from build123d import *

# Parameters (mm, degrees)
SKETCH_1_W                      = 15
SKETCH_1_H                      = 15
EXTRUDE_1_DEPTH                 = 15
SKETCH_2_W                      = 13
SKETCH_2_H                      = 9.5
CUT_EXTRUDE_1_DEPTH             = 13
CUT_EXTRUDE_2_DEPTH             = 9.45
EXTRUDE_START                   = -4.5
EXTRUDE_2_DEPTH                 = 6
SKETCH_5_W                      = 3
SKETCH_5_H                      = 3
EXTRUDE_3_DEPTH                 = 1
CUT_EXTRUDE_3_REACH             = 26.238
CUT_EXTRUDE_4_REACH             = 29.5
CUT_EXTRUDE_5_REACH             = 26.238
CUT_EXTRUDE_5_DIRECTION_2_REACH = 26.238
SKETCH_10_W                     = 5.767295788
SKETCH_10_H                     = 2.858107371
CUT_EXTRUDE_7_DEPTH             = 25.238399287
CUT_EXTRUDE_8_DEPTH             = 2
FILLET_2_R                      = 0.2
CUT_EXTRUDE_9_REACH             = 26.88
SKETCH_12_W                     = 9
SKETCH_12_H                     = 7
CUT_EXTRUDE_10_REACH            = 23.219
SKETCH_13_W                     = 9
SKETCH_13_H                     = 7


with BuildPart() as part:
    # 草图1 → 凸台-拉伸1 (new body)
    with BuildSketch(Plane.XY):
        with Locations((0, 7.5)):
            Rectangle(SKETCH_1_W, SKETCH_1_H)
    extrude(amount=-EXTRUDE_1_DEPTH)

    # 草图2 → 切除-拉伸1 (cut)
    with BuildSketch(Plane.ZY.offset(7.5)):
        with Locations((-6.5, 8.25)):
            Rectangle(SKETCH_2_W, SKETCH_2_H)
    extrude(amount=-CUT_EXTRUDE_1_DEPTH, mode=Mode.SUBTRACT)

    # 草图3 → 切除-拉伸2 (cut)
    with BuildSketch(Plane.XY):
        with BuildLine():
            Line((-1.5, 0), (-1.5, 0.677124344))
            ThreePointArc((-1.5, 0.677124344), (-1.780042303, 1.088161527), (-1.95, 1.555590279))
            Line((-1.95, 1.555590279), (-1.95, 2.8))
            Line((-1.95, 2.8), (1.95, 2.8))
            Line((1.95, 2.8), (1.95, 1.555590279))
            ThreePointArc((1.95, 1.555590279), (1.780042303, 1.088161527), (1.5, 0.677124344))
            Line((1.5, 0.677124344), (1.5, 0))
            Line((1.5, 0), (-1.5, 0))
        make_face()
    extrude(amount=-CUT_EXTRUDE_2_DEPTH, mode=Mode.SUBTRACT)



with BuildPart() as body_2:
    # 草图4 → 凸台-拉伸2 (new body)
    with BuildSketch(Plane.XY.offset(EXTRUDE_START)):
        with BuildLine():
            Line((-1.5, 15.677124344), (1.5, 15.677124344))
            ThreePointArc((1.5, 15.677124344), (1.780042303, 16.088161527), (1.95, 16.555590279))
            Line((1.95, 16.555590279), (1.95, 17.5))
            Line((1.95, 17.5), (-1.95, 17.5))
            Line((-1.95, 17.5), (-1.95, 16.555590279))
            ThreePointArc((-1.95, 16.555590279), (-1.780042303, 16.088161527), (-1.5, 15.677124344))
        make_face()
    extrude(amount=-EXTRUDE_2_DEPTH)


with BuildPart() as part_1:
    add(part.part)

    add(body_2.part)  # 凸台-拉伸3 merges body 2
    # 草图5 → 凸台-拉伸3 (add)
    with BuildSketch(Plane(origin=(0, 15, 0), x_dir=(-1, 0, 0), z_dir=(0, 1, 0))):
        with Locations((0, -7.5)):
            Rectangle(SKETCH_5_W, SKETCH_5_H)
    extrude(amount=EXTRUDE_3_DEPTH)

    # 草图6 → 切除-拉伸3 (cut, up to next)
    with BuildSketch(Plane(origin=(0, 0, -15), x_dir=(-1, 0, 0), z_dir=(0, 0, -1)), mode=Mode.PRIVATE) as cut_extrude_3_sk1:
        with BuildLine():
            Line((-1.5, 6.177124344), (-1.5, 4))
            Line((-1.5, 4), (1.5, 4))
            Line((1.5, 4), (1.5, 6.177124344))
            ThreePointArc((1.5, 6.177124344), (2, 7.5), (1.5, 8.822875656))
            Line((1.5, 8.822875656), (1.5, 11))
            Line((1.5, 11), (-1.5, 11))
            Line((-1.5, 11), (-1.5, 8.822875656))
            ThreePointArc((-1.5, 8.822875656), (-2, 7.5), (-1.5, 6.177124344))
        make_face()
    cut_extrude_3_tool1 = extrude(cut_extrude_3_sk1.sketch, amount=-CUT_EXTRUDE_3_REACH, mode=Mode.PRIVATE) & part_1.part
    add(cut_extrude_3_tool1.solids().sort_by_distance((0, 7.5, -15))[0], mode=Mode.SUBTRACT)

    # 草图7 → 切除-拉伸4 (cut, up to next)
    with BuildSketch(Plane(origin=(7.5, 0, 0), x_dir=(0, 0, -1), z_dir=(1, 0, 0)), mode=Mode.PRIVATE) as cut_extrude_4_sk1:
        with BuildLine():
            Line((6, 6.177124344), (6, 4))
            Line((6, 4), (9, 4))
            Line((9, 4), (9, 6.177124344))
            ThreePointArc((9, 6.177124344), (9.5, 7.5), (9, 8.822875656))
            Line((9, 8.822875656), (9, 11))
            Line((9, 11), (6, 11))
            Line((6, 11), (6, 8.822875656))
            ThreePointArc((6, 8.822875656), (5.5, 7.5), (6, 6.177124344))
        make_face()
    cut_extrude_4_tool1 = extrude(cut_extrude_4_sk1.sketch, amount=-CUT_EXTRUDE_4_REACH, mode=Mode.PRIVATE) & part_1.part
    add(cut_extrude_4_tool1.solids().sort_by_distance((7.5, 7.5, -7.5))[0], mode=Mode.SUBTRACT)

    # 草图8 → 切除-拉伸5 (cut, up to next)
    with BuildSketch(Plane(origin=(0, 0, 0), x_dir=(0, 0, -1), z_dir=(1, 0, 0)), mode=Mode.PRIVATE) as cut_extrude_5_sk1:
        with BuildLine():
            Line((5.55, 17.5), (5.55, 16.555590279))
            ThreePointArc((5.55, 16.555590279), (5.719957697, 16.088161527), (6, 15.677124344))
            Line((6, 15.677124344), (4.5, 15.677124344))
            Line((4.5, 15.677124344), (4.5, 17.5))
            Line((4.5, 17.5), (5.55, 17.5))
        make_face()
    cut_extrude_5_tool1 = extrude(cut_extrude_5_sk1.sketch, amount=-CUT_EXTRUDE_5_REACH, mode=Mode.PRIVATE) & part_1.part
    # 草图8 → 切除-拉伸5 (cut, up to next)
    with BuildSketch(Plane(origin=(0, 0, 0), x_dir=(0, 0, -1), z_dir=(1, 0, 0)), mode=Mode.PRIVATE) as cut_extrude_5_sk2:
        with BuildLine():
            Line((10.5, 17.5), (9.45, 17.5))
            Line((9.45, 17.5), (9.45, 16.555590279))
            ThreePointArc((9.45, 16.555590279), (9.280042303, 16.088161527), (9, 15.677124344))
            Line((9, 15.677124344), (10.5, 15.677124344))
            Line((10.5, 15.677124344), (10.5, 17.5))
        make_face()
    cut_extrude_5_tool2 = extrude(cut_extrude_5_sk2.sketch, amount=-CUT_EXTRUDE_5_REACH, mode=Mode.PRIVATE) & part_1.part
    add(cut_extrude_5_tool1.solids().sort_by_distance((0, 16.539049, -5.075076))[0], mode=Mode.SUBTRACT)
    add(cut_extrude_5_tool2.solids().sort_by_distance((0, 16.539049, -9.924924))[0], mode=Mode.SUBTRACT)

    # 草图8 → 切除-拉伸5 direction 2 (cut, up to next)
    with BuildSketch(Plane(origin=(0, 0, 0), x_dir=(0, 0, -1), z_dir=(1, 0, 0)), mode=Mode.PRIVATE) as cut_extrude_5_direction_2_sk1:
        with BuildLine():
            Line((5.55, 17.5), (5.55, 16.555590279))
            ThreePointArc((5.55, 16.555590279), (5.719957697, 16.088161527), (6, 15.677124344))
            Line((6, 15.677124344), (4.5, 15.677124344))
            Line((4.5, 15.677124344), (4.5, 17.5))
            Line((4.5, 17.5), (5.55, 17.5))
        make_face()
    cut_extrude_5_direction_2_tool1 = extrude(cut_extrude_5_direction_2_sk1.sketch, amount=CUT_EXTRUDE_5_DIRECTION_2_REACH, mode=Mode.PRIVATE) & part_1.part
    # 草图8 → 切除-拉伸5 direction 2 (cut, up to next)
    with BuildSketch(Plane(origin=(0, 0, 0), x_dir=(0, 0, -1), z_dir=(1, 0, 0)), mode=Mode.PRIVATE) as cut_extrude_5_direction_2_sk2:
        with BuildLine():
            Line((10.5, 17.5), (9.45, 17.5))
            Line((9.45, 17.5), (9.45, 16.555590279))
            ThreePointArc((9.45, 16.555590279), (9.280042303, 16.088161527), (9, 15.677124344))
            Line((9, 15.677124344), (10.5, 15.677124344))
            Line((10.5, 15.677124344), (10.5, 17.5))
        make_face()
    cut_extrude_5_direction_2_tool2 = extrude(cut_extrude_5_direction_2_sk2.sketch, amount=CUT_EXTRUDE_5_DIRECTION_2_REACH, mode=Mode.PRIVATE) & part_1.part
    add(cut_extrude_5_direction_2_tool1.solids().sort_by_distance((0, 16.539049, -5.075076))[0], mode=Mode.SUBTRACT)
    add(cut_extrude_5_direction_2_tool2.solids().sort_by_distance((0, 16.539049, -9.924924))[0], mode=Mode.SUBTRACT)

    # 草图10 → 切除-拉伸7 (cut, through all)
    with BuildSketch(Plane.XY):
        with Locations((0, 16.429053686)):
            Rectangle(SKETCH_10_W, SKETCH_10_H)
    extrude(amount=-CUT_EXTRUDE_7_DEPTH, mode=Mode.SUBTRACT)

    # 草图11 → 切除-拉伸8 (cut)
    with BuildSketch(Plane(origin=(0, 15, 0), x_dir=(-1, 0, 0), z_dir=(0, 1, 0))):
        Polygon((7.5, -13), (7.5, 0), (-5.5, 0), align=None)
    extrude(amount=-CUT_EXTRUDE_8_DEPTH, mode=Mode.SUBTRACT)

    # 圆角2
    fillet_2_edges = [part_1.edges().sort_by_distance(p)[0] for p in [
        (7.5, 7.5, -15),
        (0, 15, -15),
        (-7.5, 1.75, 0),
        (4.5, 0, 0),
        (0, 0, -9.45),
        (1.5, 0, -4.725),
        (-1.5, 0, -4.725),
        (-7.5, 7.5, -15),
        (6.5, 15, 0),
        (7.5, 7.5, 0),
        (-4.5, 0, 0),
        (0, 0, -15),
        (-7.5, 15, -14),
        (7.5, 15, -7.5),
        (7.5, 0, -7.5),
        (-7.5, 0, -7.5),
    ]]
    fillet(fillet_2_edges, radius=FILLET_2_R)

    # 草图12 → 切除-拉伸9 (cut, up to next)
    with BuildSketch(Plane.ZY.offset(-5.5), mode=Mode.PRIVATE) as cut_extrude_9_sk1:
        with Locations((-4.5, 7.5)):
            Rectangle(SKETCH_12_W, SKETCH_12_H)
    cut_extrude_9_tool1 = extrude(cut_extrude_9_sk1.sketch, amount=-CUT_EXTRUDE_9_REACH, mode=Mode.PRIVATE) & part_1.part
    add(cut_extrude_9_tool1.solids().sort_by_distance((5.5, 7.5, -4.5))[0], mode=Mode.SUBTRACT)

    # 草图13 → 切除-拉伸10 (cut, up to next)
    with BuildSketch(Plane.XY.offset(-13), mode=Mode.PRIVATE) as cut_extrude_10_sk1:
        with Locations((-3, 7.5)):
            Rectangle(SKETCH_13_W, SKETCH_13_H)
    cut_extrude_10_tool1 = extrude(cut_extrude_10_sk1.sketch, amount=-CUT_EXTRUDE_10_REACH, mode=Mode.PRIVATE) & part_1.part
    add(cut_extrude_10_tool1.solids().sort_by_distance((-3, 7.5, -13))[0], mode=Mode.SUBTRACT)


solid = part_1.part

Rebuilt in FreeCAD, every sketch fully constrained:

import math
import FreeCAD as App
import Part
import Sketcher
Q = App.Units.Quantity


def edges_at(feature, points):
    """Names of the edges that pass closest to the given points."""
    edges = feature.Shape.Edges
    near = lambda p: min(range(len(edges)), key=lambda i: edges[i].distToShape(Part.Vertex(*p))[0])
    return sorted({f"Edge{near(p) + 1}" for p in points})

doc = App.newDocument("Part")
params = doc.addObject("Spreadsheet::Sheet", "Params")
for row, (alias, value) in enumerate([
    ("sketch1_width", "15 mm"),
    ("pad1_length", "15 mm"),
    ("sketch2_height", "13 mm"),
    ("sketch2_width", "9.5 mm"),
    ("pocket1_length", "13 mm"),
    ("sketch3_radius", "2 mm"),
    ("sketch3_width", "3 mm"),
    ("sketch3_width2", "3.9 mm"),
    ("pocket2_length", "9.45 mm"),
    ("sketch4_radius", "2 mm"),
    ("sketch4_width", "3 mm"),
    ("sketch4_width2", "3.9 mm"),
    ("pad2_length", "6 mm"),
    ("sketch5_width", "3 mm"),
    ("pad3_length", "1 mm"),
    ("sketch6_radius", "2 mm"),
    ("sketch6_width", "3 mm"),
    ("sketch7_radius", "2 mm"),
    ("sketch7_height", "3 mm"),
    ("sketch8_radius", "2 mm"),
    ("sketch8_height", "1.5 mm"),
    ("sketch8_height2", "1.05 mm"),
    ("sketch9_radius", "2 mm"),
    ("sketch9_height", "1.5 mm"),
    ("sketch9_height2", "1.05 mm"),
    ("sketch10_radius", "2 mm"),
    ("sketch10_height", "1.5 mm"),
    ("sketch10_height2", "1.05 mm"),
    ("sketch11_radius", "2 mm"),
    ("sketch11_height", "1.5 mm"),
    ("sketch11_height2", "1.05 mm"),
    ("sketch13_width", "13 mm"),
    ("pocket10_length", "2 mm"),
    ("fillet_radius", "0.2 mm"),
    ("sketch14_width", "7 mm"),
    ("sketch14_height", "9 mm"),
    ("sketch15_width", "9 mm"),
    ("sketch15_height", "7 mm"),
], start=1):
    params.set(f"A{row}", alias)
    params.set(f"B{row}", "=" + value)
    params.setAlias(f"B{row}", alias)

body = doc.addObject("PartDesign::Body", "Body")

# Sketch on XY plane
sketch1 = body.newObject("Sketcher::SketchObject", "Sketch")
sketch1.AttachmentSupport = (doc.getObject("XY_Plane"), [""])
sketch1.MapMode = "FlatFace"
sketch1.addGeometry(Part.LineSegment(App.Vector(-8, 15, 0), App.Vector(-8, 0, 0)), False)
sketch1.addGeometry(Part.LineSegment(App.Vector(-8, 0, 0), App.Vector(8, 0, 0)), False)
sketch1.addGeometry(Part.LineSegment(App.Vector(8, 0, 0), App.Vector(8, 15, 0)), False)
sketch1.addGeometry(Part.LineSegment(App.Vector(8, 15, 0), App.Vector(-8, 15, 0)), False)
sketch1.addConstraint(Sketcher.Constraint("Coincident", 0, 2, 1, 1))
sketch1.addConstraint(Sketcher.Constraint("Coincident", 1, 2, 2, 1))
sketch1.addConstraint(Sketcher.Constraint("Coincident", 2, 2, 3, 1))
sketch1.addConstraint(Sketcher.Constraint("Coincident", 3, 2, 0, 1))
sketch1.addConstraint(Sketcher.Constraint("Vertical", 0))
sketch1.addConstraint(Sketcher.Constraint("Horizontal", 1))
sketch1.addConstraint(Sketcher.Constraint("Vertical", 2))
sketch1.addConstraint(Sketcher.Constraint("Horizontal", 3))
sketch1.addConstraint(Sketcher.Constraint("Symmetric", 0, 2, 1, 2, -1, 1))
sketch1.addConstraint(Sketcher.Constraint("Equal", 3, 0))
sketch1.addConstraint(Sketcher.Constraint("DistanceX", 1, 1, 1, 2, Q("15 mm")))
sketch1.setExpression("Constraints[10]", "Params.sketch1_width")
pad1 = body.newObject("PartDesign::Pad", "Pad")
pad1.Profile = sketch1
pad1.setExpression("Length", "Params.pad1_length")
pad1.Reversed = True

# Sketch on YZ plane
sketch2 = body.newObject("Sketcher::SketchObject", "Sketch001")
sketch2.AttachmentSupport = (doc.getObject("YZ_Plane"), [""])
sketch2.MapMode = "FlatFace"
sketch2.AttachmentOffset = App.Placement(App.Vector(0, 0, -7.5), App.Rotation())
sketch2.addGeometry(Part.LineSegment(App.Vector(13, -13, 0), App.Vector(4, -13, 0)), False)
sketch2.addGeometry(Part.LineSegment(App.Vector(4, -13, 0), App.Vector(4, 0, 0)), False)
sketch2.addGeometry(Part.LineSegment(App.Vector(4, 0, 0), App.Vector(13, 0, 0)), False)
sketch2.addGeometry(Part.LineSegment(App.Vector(13, 0, 0), App.Vector(13, -13, 0)), False)
sketch2.addConstraint(Sketcher.Constraint("Coincident", 0, 2, 1, 1))
sketch2.addConstraint(Sketcher.Constraint("Coincident", 1, 2, 2, 1))
sketch2.addConstraint(Sketcher.Constraint("Coincident", 2, 2, 3, 1))
sketch2.addConstraint(Sketcher.Constraint("Coincident", 3, 2, 0, 1))
sketch2.addConstraint(Sketcher.Constraint("Horizontal", 0))
sketch2.addConstraint(Sketcher.Constraint("Vertical", 1))
sketch2.addConstraint(Sketcher.Constraint("Horizontal", 2))
sketch2.addConstraint(Sketcher.Constraint("Vertical", 3))
sketch2.addConstraint(Sketcher.Constraint("PointOnObject", 1, 2, -1))
sketch2.addConstraint(Sketcher.Constraint("DistanceY", 1, 1, 1, 2, Q("13 mm")))
sketch2.addConstraint(Sketcher.Constraint("DistanceX", 0, 2, 0, 1, Q("9.5 mm")))
sketch2.addConstraint(Sketcher.Constraint("DistanceX", -1, 1, 2, 2, Q("13 mm")))
sketch2.setExpression("Constraints[9]", "Params.sketch2_height")
sketch2.setExpression("Constraints[10]", "Params.sketch2_width")
pocket1 = body.newObject("PartDesign::Pocket", "Pocket")
pocket1.Profile = sketch2
pocket1.setExpression("Length", "Params.pocket1_length")
pocket1.Reversed = True

# Sketch on XY plane
sketch3 = body.newObject("Sketcher::SketchObject", "Sketch002")
sketch3.AttachmentSupport = (doc.getObject("XY_Plane"), [""])
sketch3.MapMode = "FlatFace"
sketch3.addGeometry(Part.LineSegment(App.Vector(-1.5, 0.7, 0), App.Vector(-1.5, 0, 0)), False)
sketch3.addGeometry(Part.LineSegment(App.Vector(-1.5, 0, 0), App.Vector(1.5, 0, 0)), False)
sketch3.addGeometry(Part.LineSegment(App.Vector(1.5, 0, 0), App.Vector(1.5, 0.7, 0)), False)
sketch3.addGeometry(Part.ArcOfCircle(Part.Circle(App.Vector(0, 2, 0), App.Vector(0, 0, 1), 2), math.radians(-41), math.radians(-13)), False)
sketch3.addGeometry(Part.LineSegment(App.Vector(1.9, 1.6, 0), App.Vector(1.9, 2.8, 0)), False)
sketch3.addGeometry(Part.LineSegment(App.Vector(1.9, 2.8, 0), App.Vector(-1.9, 2.8, 0)), False)
sketch3.addGeometry(Part.LineSegment(App.Vector(-1.9, 2.8, 0), App.Vector(-1.9, 1.6, 0)), False)
sketch3.addGeometry(Part.ArcOfCircle(Part.Circle(App.Vector(0, 2, 0), App.Vector(0, 0, 1), 2), math.radians(-167), math.radians(-139)), False)
sketch3.addConstraint(Sketcher.Constraint("Coincident", 0, 2, 1, 1))
sketch3.addConstraint(Sketcher.Constraint("Coincident", 1, 2, 2, 1))
sketch3.addConstraint(Sketcher.Constraint("Coincident", 2, 2, 3, 1))
sketch3.addConstraint(Sketcher.Constraint("Coincident", 3, 2, 4, 1))
sketch3.addConstraint(Sketcher.Constraint("Coincident", 4, 2, 5, 1))
sketch3.addConstraint(Sketcher.Constraint("Coincident", 5, 2, 6, 1))
sketch3.addConstraint(Sketcher.Constraint("Coincident", 6, 2, 7, 1))
sketch3.addConstraint(Sketcher.Constraint("Coincident", 7, 2, 0, 1))
sketch3.addConstraint(Sketcher.Constraint("Vertical", 0))
sketch3.addConstraint(Sketcher.Constraint("Horizontal", 1))
sketch3.addConstraint(Sketcher.Constraint("Vertical", 2))
sketch3.addConstraint(Sketcher.Constraint("Vertical", 4))
sketch3.addConstraint(Sketcher.Constraint("Horizontal", 5))
sketch3.addConstraint(Sketcher.Constraint("Vertical", 6))
sketch3.addConstraint(Sketcher.Constraint("Coincident", 7, 3, 3, 3))
sketch3.addConstraint(Sketcher.Constraint("Equal", 3, 7))
sketch3.addConstraint(Sketcher.Constraint("Symmetric", 0, 2, 1, 2, -1, 1))
sketch3.addConstraint(Sketcher.Constraint("Symmetric", 3, 2, 6, 2, -2))
sketch3.addConstraint(Sketcher.Constraint("Radius", 3, Q("2 mm")))
sketch3.addConstraint(Sketcher.Constraint("DistanceX", 1, 1, 1, 2, Q("3 mm")))
sketch3.addConstraint(Sketcher.Constraint("DistanceX", 5, 2, 5, 1, Q("3.9 mm")))
sketch3.addConstraint(Sketcher.Constraint("DistanceY", -1, 1, 3, 3, Q("2 mm")))
sketch3.addConstraint(Sketcher.Constraint("DistanceY", -1, 1, 4, 2, Q("2.8 mm")))
sketch3.setExpression("Constraints[18]", "Params.sketch3_radius")
sketch3.setExpression("Constraints[19]", "Params.sketch3_width")
sketch3.setExpression("Constraints[20]", "Params.sketch3_width2")
pocket2 = body.newObject("PartDesign::Pocket", "Pocket001")
pocket2.Profile = sketch3
pocket2.setExpression("Length", "Params.pocket2_length")
body2 = doc.addObject("PartDesign::Body", "Body001")

# Sketch on XY plane
sketch4 = body2.newObject("Sketcher::SketchObject", "Sketch003")
sketch4.AttachmentSupport = (doc.getObject("XY_Plane001"), [""])
sketch4.MapMode = "FlatFace"
sketch4.AttachmentOffset = App.Placement(App.Vector(0, 0, -4.5), App.Rotation())
sketch4.addGeometry(Part.LineSegment(App.Vector(-1.5, 15.7, 0), App.Vector(1.5, 15.7, 0)), False)
sketch4.addGeometry(Part.ArcOfCircle(Part.Circle(App.Vector(0, 17, 0), App.Vector(0, 0, 1), 2), math.radians(-41), math.radians(-13)), False)
sketch4.addGeometry(Part.LineSegment(App.Vector(1.9, 16.6, 0), App.Vector(1.9, 17.5, 0)), False)
sketch4.addGeometry(Part.LineSegment(App.Vector(1.9, 17.5, 0), App.Vector(-1.9, 17.5, 0)), False)
sketch4.addGeometry(Part.LineSegment(App.Vector(-1.9, 17.5, 0), App.Vector(-1.9, 16.6, 0)), False)
sketch4.addGeometry(Part.ArcOfCircle(Part.Circle(App.Vector(0, 17, 0), App.Vector(0, 0, 1), 2), math.radians(-167), math.radians(-139)), False)
sketch4.addConstraint(Sketcher.Constraint("Coincident", 0, 2, 1, 1))
sketch4.addConstraint(Sketcher.Constraint("Coincident", 1, 2, 2, 1))
sketch4.addConstraint(Sketcher.Constraint("Coincident", 2, 2, 3, 1))
sketch4.addConstraint(Sketcher.Constraint("Coincident", 3, 2, 4, 1))
sketch4.addConstraint(Sketcher.Constraint("Coincident", 4, 2, 5, 1))
sketch4.addConstraint(Sketcher.Constraint("Coincident", 5, 2, 0, 1))
sketch4.addConstraint(Sketcher.Constraint("Horizontal", 0))
sketch4.addConstraint(Sketcher.Constraint("Vertical", 2))
sketch4.addConstraint(Sketcher.Constraint("Horizontal", 3))
sketch4.addConstraint(Sketcher.Constraint("Vertical", 4))
sketch4.addConstraint(Sketcher.Constraint("Coincident", 5, 3, 1, 3))
sketch4.addConstraint(Sketcher.Constraint("Equal", 1, 5))
sketch4.addConstraint(Sketcher.Constraint("Symmetric", 1, 2, 4, 2, -2))
sketch4.addConstraint(Sketcher.Constraint("Radius", 1, Q("2 mm")))
sketch4.addConstraint(Sketcher.Constraint("DistanceX", 0, 1, 0, 2, Q("3 mm")))
sketch4.addConstraint(Sketcher.Constraint("DistanceX", 3, 2, 3, 1, Q("3.9 mm")))
sketch4.addConstraint(Sketcher.Constraint("DistanceY", -1, 1, 1, 3, Q("17 mm")))
sketch4.addConstraint(Sketcher.Constraint("DistanceY", -1, 1, 2, 2, Q("17.5 mm")))
sketch4.setExpression("Constraints[13]", "Params.sketch4_radius")
sketch4.setExpression("Constraints[14]", "Params.sketch4_width")
sketch4.setExpression("Constraints[15]", "Params.sketch4_width2")
pad2 = body2.newObject("PartDesign::Pad", "Pad001")
pad2.Profile = sketch4
pad2.setExpression("Length", "Params.pad2_length")
pad2.Reversed = True
body.AllowCompound = True
doc.recompute()

boolean = body.newObject("PartDesign::Boolean", "Boolean")
boolean.Type = "Fuse"
boolean.addObjects([body2])

# Sketch on XZ plane
sketch5 = body.newObject("Sketcher::SketchObject", "Sketch004")
sketch5.AttachmentSupport = (doc.getObject("XZ_Plane"), [""])
sketch5.MapMode = "FlatFace"
sketch5.AttachmentOffset = App.Placement(App.Vector(0, 0, -15), App.Rotation())
sketch5.addGeometry(Part.LineSegment(App.Vector(1.5, -6, 0), App.Vector(1.5, -9, 0)), False)
sketch5.addGeometry(Part.LineSegment(App.Vector(1.5, -9, 0), App.Vector(-1.5, -9, 0)), False)
sketch5.addGeometry(Part.LineSegment(App.Vector(-1.5, -9, 0), App.Vector(-1.5, -6, 0)), False)
sketch5.addGeometry(Part.LineSegment(App.Vector(-1.5, -6, 0), App.Vector(1.5, -6, 0)), False)
sketch5.addConstraint(Sketcher.Constraint("Coincident", 0, 2, 1, 1))
sketch5.addConstraint(Sketcher.Constraint("Coincident", 1, 2, 2, 1))
sketch5.addConstraint(Sketcher.Constraint("Coincident", 2, 2, 3, 1))
sketch5.addConstraint(Sketcher.Constraint("Coincident", 3, 2, 0, 1))
sketch5.addConstraint(Sketcher.Constraint("Vertical", 0))
sketch5.addConstraint(Sketcher.Constraint("Horizontal", 1))
sketch5.addConstraint(Sketcher.Constraint("Vertical", 2))
sketch5.addConstraint(Sketcher.Constraint("Horizontal", 3))
sketch5.addConstraint(Sketcher.Constraint("Equal", 3, 0))
sketch5.addConstraint(Sketcher.Constraint("DistanceX", 1, 2, 1, 1, Q("3 mm")))
sketch5.addConstraint(Sketcher.Constraint("DistanceY", 0, 2, -1, 1, Q("9 mm")))
sketch5.addConstraint(Sketcher.Constraint("DistanceX", -1, 1, 0, 2, Q("1.5 mm")))
sketch5.setExpression("Constraints[9]", "Params.sketch5_width")
pad3 = body.newObject("PartDesign::Pad", "Pad002")
pad3.Profile = sketch5
pad3.setExpression("Length", "Params.pad3_length")
pad3.Reversed = True

# Sketch on XY plane
sketch6 = body.newObject("Sketcher::SketchObject", "Sketch005")
sketch6.AttachmentSupport = (doc.getObject("XY_Plane"), [""])
sketch6.MapMode = "FlatFace"
sketch6.AttachmentOffset = App.Placement(App.Vector(0, 0, -15), App.Rotation())
sketch6.addGeometry(Part.LineSegment(App.Vector(1.5, 6.2, 0), App.Vector(1.5, 4, 0)), False)
sketch6.addGeometry(Part.LineSegment(App.Vector(1.5, 4, 0), App.Vector(-1.5, 4, 0)), False)
sketch6.addGeometry(Part.LineSegment(App.Vector(-1.5, 4, 0), App.Vector(-1.5, 6.2, 0)), False)
sketch6.addGeometry(Part.ArcOfCircle(Part.Circle(App.Vector(0, 7.5, 0), App.Vector(0, 0, 1), 2), math.radians(139), math.radians(221)), False)
sketch6.addGeometry(Part.LineSegment(App.Vector(-1.5, 8.8, 0), App.Vector(-1.5, 11, 0)), False)
sketch6.addGeometry(Part.LineSegment(App.Vector(-1.5, 11, 0), App.Vector(1.5, 11, 0)), False)
sketch6.addGeometry(Part.LineSegment(App.Vector(1.5, 11, 0), App.Vector(1.5, 8.8, 0)), False)
sketch6.addGeometry(Part.ArcOfCircle(Part.Circle(App.Vector(0, 7.5, 0), App.Vector(0, 0, 1), 2), math.radians(-41), math.radians(41)), False)
sketch6.addConstraint(Sketcher.Constraint("Coincident", 0, 2, 1, 1))
sketch6.addConstraint(Sketcher.Constraint("Coincident", 1, 2, 2, 1))
sketch6.addConstraint(Sketcher.Constraint("Coincident", 2, 2, 3, 2))
sketch6.addConstraint(Sketcher.Constraint("Coincident", 3, 1, 4, 1))
sketch6.addConstraint(Sketcher.Constraint("Coincident", 4, 2, 5, 1))
sketch6.addConstraint(Sketcher.Constraint("Coincident", 5, 2, 6, 1))
sketch6.addConstraint(Sketcher.Constraint("Coincident", 6, 2, 7, 2))
sketch6.addConstraint(Sketcher.Constraint("Coincident", 7, 1, 0, 1))
sketch6.addConstraint(Sketcher.Constraint("Vertical", 0))
sketch6.addConstraint(Sketcher.Constraint("Horizontal", 1))
sketch6.addConstraint(Sketcher.Constraint("Vertical", 2))
sketch6.addConstraint(Sketcher.Constraint("Vertical", 4))
sketch6.addConstraint(Sketcher.Constraint("Horizontal", 5))
sketch6.addConstraint(Sketcher.Constraint("Vertical", 6))
sketch6.addConstraint(Sketcher.Constraint("Coincident", 7, 3, 3, 3))
sketch6.addConstraint(Sketcher.Constraint("Equal", 3, 7))
sketch6.addConstraint(Sketcher.Constraint("Symmetric", 3, 1, 6, 2, -2))
sketch6.addConstraint(Sketcher.Constraint("Horizontal", 2, 2, 7, 1))
sketch6.addConstraint(Sketcher.Constraint("Vertical", 2, 2, 3, 1))
sketch6.addConstraint(Sketcher.Constraint("Equal", 2, 4))
sketch6.addConstraint(Sketcher.Constraint("Radius", 3, Q("2 mm")))
sketch6.addConstraint(Sketcher.Constraint("DistanceX", 1, 2, 1, 1, Q("3 mm")))
sketch6.addConstraint(Sketcher.Constraint("DistanceY", -1, 1, 0, 2, Q("4 mm")))
sketch6.addConstraint(Sketcher.Constraint("DistanceY", -1, 1, 4, 2, Q("11 mm")))
sketch6.setExpression("Constraints[20]", "Params.sketch6_radius")
sketch6.setExpression("Constraints[21]", "Params.sketch6_width")
pocket3 = body.newObject("PartDesign::Pocket", "Pocket002")
pocket3.Profile = sketch6
pocket3.Type = "UpToFirst"
pocket3.Reversed = True

# Sketch on YZ plane
sketch7 = body.newObject("Sketcher::SketchObject", "Sketch006")
sketch7.AttachmentSupport = (doc.getObject("YZ_Plane"), [""])
sketch7.MapMode = "FlatFace"
sketch7.AttachmentOffset = App.Placement(App.Vector(0, 0, 7.5), App.Rotation())
sketch7.addGeometry(Part.LineSegment(App.Vector(6.2, -6, 0), App.Vector(4, -6, 0)), False)
sketch7.addGeometry(Part.LineSegment(App.Vector(4, -6, 0), App.Vector(4, -9, 0)), False)
sketch7.addGeometry(Part.LineSegment(App.Vector(4, -9, 0), App.Vector(6.2, -9, 0)), False)
sketch7.addGeometry(Part.ArcOfCircle(Part.Circle(App.Vector(7.5, -7.5, 0), App.Vector(0, 0, 1), 2), math.radians(-131), math.radians(-49)), False)
sketch7.addGeometry(Part.LineSegment(App.Vector(8.8, -9, 0), App.Vector(11, -9, 0)), False)
sketch7.addGeometry(Part.LineSegment(App.Vector(11, -9, 0), App.Vector(11, -6, 0)), False)
sketch7.addGeometry(Part.LineSegment(App.Vector(11, -6, 0), App.Vector(8.8, -6, 0)), False)
sketch7.addGeometry(Part.ArcOfCircle(Part.Circle(App.Vector(7.5, -7.5, 0), App.Vector(0, 0, 1), 2), math.radians(49), math.radians(131)), False)
sketch7.addConstraint(Sketcher.Constraint("Coincident", 0, 2, 1, 1))
sketch7.addConstraint(Sketcher.Constraint("Coincident", 1, 2, 2, 1))
sketch7.addConstraint(Sketcher.Constraint("Coincident", 2, 2, 3, 1))
sketch7.addConstraint(Sketcher.Constraint("Coincident", 3, 2, 4, 1))
sketch7.addConstraint(Sketcher.Constraint("Coincident", 4, 2, 5, 1))
sketch7.addConstraint(Sketcher.Constraint("Coincident", 5, 2, 6, 1))
sketch7.addConstraint(Sketcher.Constraint("Coincident", 6, 2, 7, 1))
sketch7.addConstraint(Sketcher.Constraint("Coincident", 7, 2, 0, 1))
sketch7.addConstraint(Sketcher.Constraint("Horizontal", 0))
sketch7.addConstraint(Sketcher.Constraint("Vertical", 1))
sketch7.addConstraint(Sketcher.Constraint("Horizontal", 2))
sketch7.addConstraint(Sketcher.Constraint("Horizontal", 4))
sketch7.addConstraint(Sketcher.Constraint("Vertical", 5))
sketch7.addConstraint(Sketcher.Constraint("Horizontal", 6))
sketch7.addConstraint(Sketcher.Constraint("Coincident", 7, 3, 3, 3))
sketch7.addConstraint(Sketcher.Constraint("Equal", 3, 7))
sketch7.addConstraint(Sketcher.Constraint("Horizontal", 2, 2, 3, 2))
sketch7.addConstraint(Sketcher.Constraint("Horizontal", 0, 2, 5, 2))
sketch7.addConstraint(Sketcher.Constraint("Vertical", 3, 2, 6, 2))
sketch7.addConstraint(Sketcher.Constraint("Equal", 2, 4))
sketch7.addConstraint(Sketcher.Constraint("Radius", 3, Q("2 mm")))
sketch7.addConstraint(Sketcher.Constraint("DistanceY", 1, 2, 1, 1, Q("3 mm")))
sketch7.addConstraint(Sketcher.Constraint("DistanceX", -1, 1, 0, 2, Q("4 mm")))
sketch7.addConstraint(Sketcher.Constraint("DistanceY", 0, 2, -1, 1, Q("6 mm")))
sketch7.addConstraint(Sketcher.Constraint("DistanceX", -1, 1, 4, 2, Q("11 mm")))
sketch7.setExpression("Constraints[20]", "Params.sketch7_radius")
sketch7.setExpression("Constraints[21]", "Params.sketch7_height")
pocket4 = body.newObject("PartDesign::Pocket", "Pocket003")
pocket4.Profile = sketch7
pocket4.Type = "UpToFirst"

# Sketch on YZ plane
sketch8 = body.newObject("Sketcher::SketchObject", "Sketch007")
sketch8.AttachmentSupport = (doc.getObject("YZ_Plane"), [""])
sketch8.MapMode = "FlatFace"
sketch8.addGeometry(Part.LineSegment(App.Vector(16.6, -5.5, 0), App.Vector(17.5, -5.5, 0)), False)
sketch8.addGeometry(Part.LineSegment(App.Vector(17.5, -5.5, 0), App.Vector(17.5, -4.5, 0)), False)
sketch8.addGeometry(Part.LineSegment(App.Vector(17.5, -4.5, 0), App.Vector(15.7, -4.5, 0)), False)
sketch8.addGeometry(Part.LineSegment(App.Vector(15.7, -4.5, 0), App.Vector(15.7, -6, 0)), False)
sketch8.addGeometry(Part.ArcOfCircle(Part.Circle(App.Vector(17, -7.5, 0), App.Vector(0, 0, 1), 2), math.radians(103), math.radians(131)), False)
sketch8.addConstraint(Sketcher.Constraint("Coincident", 0, 2, 1, 1))
sketch8.addConstraint(Sketcher.Constraint("Coincident", 1, 2, 2, 1))
sketch8.addConstraint(Sketcher.Constraint("Coincident", 2, 2, 3, 1))
sketch8.addConstraint(Sketcher.Constraint("Coincident", 3, 2, 4, 2))
sketch8.addConstraint(Sketcher.Constraint("Coincident", 4, 1, 0, 1))
sketch8.addConstraint(Sketcher.Constraint("Horizontal", 0))
sketch8.addConstraint(Sketcher.Constraint("Vertical", 1))
sketch8.addConstraint(Sketcher.Constraint("Horizontal", 2))
sketch8.addConstraint(Sketcher.Constraint("Vertical", 3))
sketch8.addConstraint(Sketcher.Constraint("Radius", 4, Q("2 mm")))
sketch8.addConstraint(Sketcher.Constraint("DistanceY", 3, 2, 3, 1, Q("1.5 mm")))
sketch8.addConstraint(Sketcher.Constraint("DistanceX", -1, 1, 4, 3, Q("17 mm")))
sketch8.addConstraint(Sketcher.Constraint("DistanceY", 3, 2, -1, 1, Q("6 mm")))
sketch8.addConstraint(Sketcher.Constraint("DistanceY", 4, 3, 1, 2, Q("3 mm")))
sketch8.addConstraint(Sketcher.Constraint("DistanceY", 1, 1, 1, 2, Q("1.05 mm")))
sketch8.addConstraint(Sketcher.Constraint("DistanceX", -1, 1, 0, 2, Q("17.5 mm")))
sketch8.setExpression("Constraints[9]", "Params.sketch8_radius")
sketch8.setExpression("Constraints[10]", "Params.sketch8_height")
sketch8.setExpression("Constraints[14]", "Params.sketch8_height2")
pocket5 = body.newObject("PartDesign::Pocket", "Pocket004")
pocket5.Profile = sketch8
pocket5.Type = "UpToFirst"

# Sketch on YZ plane
sketch9 = body.newObject("Sketcher::SketchObject", "Sketch008")
sketch9.AttachmentSupport = (doc.getObject("YZ_Plane"), [""])
sketch9.MapMode = "FlatFace"
sketch9.addGeometry(Part.LineSegment(App.Vector(17.5, -10.5, 0), App.Vector(17.5, -9.4, 0)), False)
sketch9.addGeometry(Part.LineSegment(App.Vector(17.5, -9.4, 0), App.Vector(16.6, -9.4, 0)), False)
sketch9.addGeometry(Part.ArcOfCircle(Part.Circle(App.Vector(17, -7.5, 0), App.Vector(0, 0, 1), 2), math.radians(-131), math.radians(-103)), False)
sketch9.addGeometry(Part.LineSegment(App.Vector(15.7, -9, 0), App.Vector(15.7, -10.5, 0)), False)
sketch9.addGeometry(Part.LineSegment(App.Vector(15.7, -10.5, 0), App.Vector(17.5, -10.5, 0)), False)
sketch9.addConstraint(Sketcher.Constraint("Coincident", 0, 2, 1, 1))
sketch9.addConstraint(Sketcher.Constraint("Coincident", 1, 2, 2, 2))
sketch9.addConstraint(Sketcher.Constraint("Coincident", 2, 1, 3, 1))
sketch9.addConstraint(Sketcher.Constraint("Coincident", 3, 2, 4, 1))
sketch9.addConstraint(Sketcher.Constraint("Coincident", 4, 2, 0, 1))
sketch9.addConstraint(Sketcher.Constraint("Vertical", 0))
sketch9.addConstraint(Sketcher.Constraint("Horizontal", 1))
sketch9.addConstraint(Sketcher.Constraint("Vertical", 3))
sketch9.addConstraint(Sketcher.Constraint("Horizontal", 4))
sketch9.addConstraint(Sketcher.Constraint("Radius", 2, Q("2 mm")))
sketch9.addConstraint(Sketcher.Constraint("DistanceY", 3, 2, 3, 1, Q("1.5 mm")))
sketch9.addConstraint(Sketcher.Constraint("DistanceX", -1, 1, 2, 3, Q("17 mm")))
sketch9.addConstraint(Sketcher.Constraint("DistanceY", 2, 1, -1, 1, Q("9 mm")))
sketch9.addConstraint(Sketcher.Constraint("DistanceY", 3, 2, 2, 3, Q("3 mm")))
sketch9.addConstraint(Sketcher.Constraint("DistanceY", 0, 1, 0, 2, Q("1.05 mm")))
sketch9.addConstraint(Sketcher.Constraint("DistanceX", -1, 1, 0, 2, Q("17.5 mm")))
sketch9.setExpression("Constraints[9]", "Params.sketch9_radius")
sketch9.setExpression("Constraints[10]", "Params.sketch9_height")
sketch9.setExpression("Constraints[14]", "Params.sketch9_height2")
pocket6 = body.newObject("PartDesign::Pocket", "Pocket005")
pocket6.Profile = sketch9
pocket6.Type = "UpToFirst"

# Sketch on YZ plane
sketch10 = body.newObject("Sketcher::SketchObject", "Sketch009")
sketch10.AttachmentSupport = (doc.getObject("YZ_Plane"), [""])
sketch10.MapMode = "FlatFace"
sketch10.addGeometry(Part.LineSegment(App.Vector(16.6, -5.5, 0), App.Vector(17.5, -5.5, 0)), False)
sketch10.addGeometry(Part.LineSegment(App.Vector(17.5, -5.5, 0), App.Vector(17.5, -4.5, 0)), False)
sketch10.addGeometry(Part.LineSegment(App.Vector(17.5, -4.5, 0), App.Vector(15.7, -4.5, 0)), False)
sketch10.addGeometry(Part.LineSegment(App.Vector(15.7, -4.5, 0), App.Vector(15.7, -6, 0)), False)
sketch10.addGeometry(Part.ArcOfCircle(Part.Circle(App.Vector(17, -7.5, 0), App.Vector(0, 0, 1), 2), math.radians(103), math.radians(131)), False)
sketch10.addConstraint(Sketcher.Constraint("Coincident", 0, 2, 1, 1))
sketch10.addConstraint(Sketcher.Constraint("Coincident", 1, 2, 2, 1))
sketch10.addConstraint(Sketcher.Constraint("Coincident", 2, 2, 3, 1))
sketch10.addConstraint(Sketcher.Constraint("Coincident", 3, 2, 4, 2))
sketch10.addConstraint(Sketcher.Constraint("Coincident", 4, 1, 0, 1))
sketch10.addConstraint(Sketcher.Constraint("Horizontal", 0))
sketch10.addConstraint(Sketcher.Constraint("Vertical", 1))
sketch10.addConstraint(Sketcher.Constraint("Horizontal", 2))
sketch10.addConstraint(Sketcher.Constraint("Vertical", 3))
sketch10.addConstraint(Sketcher.Constraint("Radius", 4, Q("2 mm")))
sketch10.addConstraint(Sketcher.Constraint("DistanceY", 3, 2, 3, 1, Q("1.5 mm")))
sketch10.addConstraint(Sketcher.Constraint("DistanceX", -1, 1, 4, 3, Q("17 mm")))
sketch10.addConstraint(Sketcher.Constraint("DistanceY", 3, 2, -1, 1, Q("6 mm")))
sketch10.addConstraint(Sketcher.Constraint("DistanceY", 4, 3, 1, 2, Q("3 mm")))
sketch10.addConstraint(Sketcher.Constraint("DistanceY", 1, 1, 1, 2, Q("1.05 mm")))
sketch10.addConstraint(Sketcher.Constraint("DistanceX", -1, 1, 0, 2, Q("17.5 mm")))
sketch10.setExpression("Constraints[9]", "Params.sketch10_radius")
sketch10.setExpression("Constraints[10]", "Params.sketch10_height")
sketch10.setExpression("Constraints[14]", "Params.sketch10_height2")
pocket7 = body.newObject("PartDesign::Pocket", "Pocket006")
pocket7.Profile = sketch10
pocket7.Type = "UpToFirst"
pocket7.Reversed = True

# Sketch on YZ plane
sketch11 = body.newObject("Sketcher::SketchObject", "Sketch010")
sketch11.AttachmentSupport = (doc.getObject("YZ_Plane"), [""])
sketch11.MapMode = "FlatFace"
sketch11.addGeometry(Part.LineSegment(App.Vector(17.5, -10.5, 0), App.Vector(17.5, -9.4, 0)), False)
sketch11.addGeometry(Part.LineSegment(App.Vector(17.5, -9.4, 0), App.Vector(16.6, -9.4, 0)), False)
sketch11.addGeometry(Part.ArcOfCircle(Part.Circle(App.Vector(17, -7.5, 0), App.Vector(0, 0, 1), 2), math.radians(-131), math.radians(-103)), False)
sketch11.addGeometry(Part.LineSegment(App.Vector(15.7, -9, 0), App.Vector(15.7, -10.5, 0)), False)
sketch11.addGeometry(Part.LineSegment(App.Vector(15.7, -10.5, 0), App.Vector(17.5, -10.5, 0)), False)
sketch11.addConstraint(Sketcher.Constraint("Coincident", 0, 2, 1, 1))
sketch11.addConstraint(Sketcher.Constraint("Coincident", 1, 2, 2, 2))
sketch11.addConstraint(Sketcher.Constraint("Coincident", 2, 1, 3, 1))
sketch11.addConstraint(Sketcher.Constraint("Coincident", 3, 2, 4, 1))
sketch11.addConstraint(Sketcher.Constraint("Coincident", 4, 2, 0, 1))
sketch11.addConstraint(Sketcher.Constraint("Vertical", 0))
sketch11.addConstraint(Sketcher.Constraint("Horizontal", 1))
sketch11.addConstraint(Sketcher.Constraint("Vertical", 3))
sketch11.addConstraint(Sketcher.Constraint("Horizontal", 4))
sketch11.addConstraint(Sketcher.Constraint("Radius", 2, Q("2 mm")))
sketch11.addConstraint(Sketcher.Constraint("DistanceY", 3, 2, 3, 1, Q("1.5 mm")))
sketch11.addConstraint(Sketcher.Constraint("DistanceX", -1, 1, 2, 3, Q("17 mm")))
sketch11.addConstraint(Sketcher.Constraint("DistanceY", 2, 1, -1, 1, Q("9 mm")))
sketch11.addConstraint(Sketcher.Constraint("DistanceY", 3, 2, 2, 3, Q("3 mm")))
sketch11.addConstraint(Sketcher.Constraint("DistanceY", 0, 1, 0, 2, Q("1.05 mm")))
sketch11.addConstraint(Sketcher.Constraint("DistanceX", -1, 1, 0, 2, Q("17.5 mm")))
sketch11.setExpression("Constraints[9]", "Params.sketch11_radius")
sketch11.setExpression("Constraints[10]", "Params.sketch11_height")
sketch11.setExpression("Constraints[14]", "Params.sketch11_height2")
pocket8 = body.newObject("PartDesign::Pocket", "Pocket007")
pocket8.Profile = sketch11
pocket8.Type = "UpToFirst"
pocket8.Reversed = True

# Sketch on XY plane
sketch12 = body.newObject("Sketcher::SketchObject", "Sketch011")
sketch12.AttachmentSupport = (doc.getObject("XY_Plane"), [""])
sketch12.MapMode = "FlatFace"
sketch12.addGeometry(Part.LineSegment(App.Vector(-2.9, 17.9, 0), App.Vector(-2.9, 15, 0)), False)
sketch12.addGeometry(Part.LineSegment(App.Vector(-2.9, 15, 0), App.Vector(2.9, 15, 0)), False)
sketch12.addGeometry(Part.LineSegment(App.Vector(2.9, 15, 0), App.Vector(2.9, 17.9, 0)), False)
sketch12.addGeometry(Part.LineSegment(App.Vector(2.9, 17.9, 0), App.Vector(-2.9, 17.9, 0)), False)
sketch12.addConstraint(Sketcher.Constraint("Coincident", 0, 2, 1, 1))
sketch12.addConstraint(Sketcher.Constraint("Coincident", 1, 2, 2, 1))
sketch12.addConstraint(Sketcher.Constraint("Coincident", 2, 2, 3, 1))
sketch12.addConstraint(Sketcher.Constraint("Coincident", 3, 2, 0, 1))
sketch12.addConstraint(Sketcher.Constraint("Vertical", 0))
sketch12.addConstraint(Sketcher.Constraint("Horizontal", 1))
sketch12.addConstraint(Sketcher.Constraint("Vertical", 2))
sketch12.addConstraint(Sketcher.Constraint("Horizontal", 3))
sketch12.addConstraint(Sketcher.Constraint("DistanceY", -1, 1, 0, 2, Q("15 mm")))
sketch12.addConstraint(Sketcher.Constraint("DistanceX", 1, 1, 1, 2, Q("5.767296 mm")))
sketch12.addConstraint(Sketcher.Constraint("DistanceY", 0, 2, 0, 1, Q("2.858107 mm")))
sketch12.addConstraint(Sketcher.Constraint("DistanceX", 0, 2, -1, 1, Q("2.883648 mm")))
pocket9 = body.newObject("PartDesign::Pocket", "Pocket008")
pocket9.Profile = sketch12
pocket9.Type = "ThroughAll"

# Sketch on XZ plane
sketch13 = body.newObject("Sketcher::SketchObject", "Sketch012")
sketch13.AttachmentSupport = (doc.getObject("XZ_Plane"), [""])
sketch13.MapMode = "FlatFace"
sketch13.AttachmentOffset = App.Placement(App.Vector(0, 0, -15), App.Rotation())
sketch13.addGeometry(Part.LineSegment(App.Vector(-8, -13, 0), App.Vector(-8, 0, 0)), False)
sketch13.addGeometry(Part.LineSegment(App.Vector(-8, 0, 0), App.Vector(6, 0, 0)), False)
sketch13.addGeometry(Part.LineSegment(App.Vector(6, 0, 0), App.Vector(-8, -13, 0)), False)
sketch13.addConstraint(Sketcher.Constraint("Coincident", 0, 2, 1, 1))
sketch13.addConstraint(Sketcher.Constraint("Coincident", 1, 2, 2, 1))
sketch13.addConstraint(Sketcher.Constraint("Coincident", 2, 2, 0, 1))
sketch13.addConstraint(Sketcher.Constraint("Vertical", 0))
sketch13.addConstraint(Sketcher.Constraint("Horizontal", 1))
sketch13.addConstraint(Sketcher.Constraint("PointOnObject", 0, 2, -1))
sketch13.addConstraint(Sketcher.Constraint("Equal", 1, 0))
sketch13.addConstraint(Sketcher.Constraint("DistanceX", 1, 1, 1, 2, Q("13 mm")))
sketch13.addConstraint(Sketcher.Constraint("DistanceX", 0, 2, -1, 1, Q("7.5 mm")))
sketch13.setExpression("Constraints[7]", "Params.sketch13_width")
pocket10 = body.newObject("PartDesign::Pocket", "Pocket009")
pocket10.Profile = sketch13
pocket10.setExpression("Length", "Params.pocket10_length")
pocket10.Reversed = True
doc.recompute()

fillet = body.newObject("PartDesign::Fillet", "Fillet")
fillet.Base = (pocket10, edges_at(pocket10, [
    (7.5, 7.5, -15),
    (0, 15, -15),
    (-7.5, 1.75, 0),
    (4.5, 0, 0),
    (0, 0, -9.45),
    (1.5, 0, -4.725),
    (-1.5, 0, -4.725),
    (-7.5, 7.5, -15),
    (6.5, 15, 0),
    (7.5, 7.5, 0),
    (-4.5, 0, 0),
    (0, 0, -15),
    (-7.5, 15, -14),
    (7.5, 15, -7.5),
    (7.5, 0, -7.5),
    (-7.5, 0, -7.5),
]))
fillet.setExpression("Radius", "Params.fillet_radius")

# Sketch on YZ plane
sketch14 = body.newObject("Sketcher::SketchObject", "Sketch013")
sketch14.AttachmentSupport = (doc.getObject("YZ_Plane"), [""])
sketch14.MapMode = "FlatFace"
sketch14.AttachmentOffset = App.Placement(App.Vector(0, 0, 5.5), App.Rotation())
sketch14.addGeometry(Part.LineSegment(App.Vector(11, -9, 0), App.Vector(4, -9, 0)), False)
sketch14.addGeometry(Part.LineSegment(App.Vector(4, -9, 0), App.Vector(4, 0, 0)), False)
sketch14.addGeometry(Part.LineSegment(App.Vector(4, 0, 0), App.Vector(11, 0, 0)), False)
sketch14.addGeometry(Part.LineSegment(App.Vector(11, 0, 0), App.Vector(11, -9, 0)), False)
sketch14.addConstraint(Sketcher.Constraint("Coincident", 0, 2, 1, 1))
sketch14.addConstraint(Sketcher.Constraint("Coincident", 1, 2, 2, 1))
sketch14.addConstraint(Sketcher.Constraint("Coincident", 2, 2, 3, 1))
sketch14.addConstraint(Sketcher.Constraint("Coincident", 3, 2, 0, 1))
sketch14.addConstraint(Sketcher.Constraint("Horizontal", 0))
sketch14.addConstraint(Sketcher.Constraint("Vertical", 1))
sketch14.addConstraint(Sketcher.Constraint("Horizontal", 2))
sketch14.addConstraint(Sketcher.Constraint("Vertical", 3))
sketch14.addConstraint(Sketcher.Constraint("PointOnObject", 1, 2, -1))
sketch14.addConstraint(Sketcher.Constraint("DistanceX", 0, 2, 0, 1, Q("7 mm")))
sketch14.addConstraint(Sketcher.Constraint("DistanceY", 1, 1, 1, 2, Q("9 mm")))
sketch14.addConstraint(Sketcher.Constraint("DistanceX", -1, 1, 0, 2, Q("4 mm")))
sketch14.setExpression("Constraints[9]", "Params.sketch14_width")
sketch14.setExpression("Constraints[10]", "Params.sketch14_height")
pocket11 = body.newObject("PartDesign::Pocket", "Pocket010")
pocket11.Profile = sketch14
pocket11.Type = "UpToFirst"
pocket11.Reversed = True

# Sketch on XY plane
sketch15 = body.newObject("Sketcher::SketchObject", "Sketch014")
sketch15.AttachmentSupport = (doc.getObject("XY_Plane"), [""])
sketch15.MapMode = "FlatFace"
sketch15.AttachmentOffset = App.Placement(App.Vector(0, 0, -13), App.Rotation())
sketch15.addGeometry(Part.LineSegment(App.Vector(-8, 11, 0), App.Vector(-8, 4, 0)), False)
sketch15.addGeometry(Part.LineSegment(App.Vector(-8, 4, 0), App.Vector(2, 4, 0)), False)
sketch15.addGeometry(Part.LineSegment(App.Vector(2, 4, 0), App.Vector(2, 11, 0)), False)
sketch15.addGeometry(Part.LineSegment(App.Vector(2, 11, 0), App.Vector(-8, 11, 0)), False)
sketch15.addConstraint(Sketcher.Constraint("Coincident", 0, 2, 1, 1))
sketch15.addConstraint(Sketcher.Constraint("Coincident", 1, 2, 2, 1))
sketch15.addConstraint(Sketcher.Constraint("Coincident", 2, 2, 3, 1))
sketch15.addConstraint(Sketcher.Constraint("Coincident", 3, 2, 0, 1))
sketch15.addConstraint(Sketcher.Constraint("Vertical", 0))
sketch15.addConstraint(Sketcher.Constraint("Horizontal", 1))
sketch15.addConstraint(Sketcher.Constraint("Vertical", 2))
sketch15.addConstraint(Sketcher.Constraint("Horizontal", 3))
sketch15.addConstraint(Sketcher.Constraint("DistanceX", 1, 1, 1, 2, Q("9 mm")))
sketch15.addConstraint(Sketcher.Constraint("DistanceY", 0, 2, 0, 1, Q("7 mm")))
sketch15.addConstraint(Sketcher.Constraint("DistanceY", -1, 1, 0, 2, Q("4 mm")))
sketch15.addConstraint(Sketcher.Constraint("DistanceX", 0, 2, -1, 1, Q("7.5 mm")))
sketch15.setExpression("Constraints[8]", "Params.sketch15_width")
sketch15.setExpression("Constraints[9]", "Params.sketch15_height")
pocket12 = body.newObject("PartDesign::Pocket", "Pocket011")
pocket12.Profile = sketch15
pocket12.Type = "UpToFirst"

doc.recompute()
